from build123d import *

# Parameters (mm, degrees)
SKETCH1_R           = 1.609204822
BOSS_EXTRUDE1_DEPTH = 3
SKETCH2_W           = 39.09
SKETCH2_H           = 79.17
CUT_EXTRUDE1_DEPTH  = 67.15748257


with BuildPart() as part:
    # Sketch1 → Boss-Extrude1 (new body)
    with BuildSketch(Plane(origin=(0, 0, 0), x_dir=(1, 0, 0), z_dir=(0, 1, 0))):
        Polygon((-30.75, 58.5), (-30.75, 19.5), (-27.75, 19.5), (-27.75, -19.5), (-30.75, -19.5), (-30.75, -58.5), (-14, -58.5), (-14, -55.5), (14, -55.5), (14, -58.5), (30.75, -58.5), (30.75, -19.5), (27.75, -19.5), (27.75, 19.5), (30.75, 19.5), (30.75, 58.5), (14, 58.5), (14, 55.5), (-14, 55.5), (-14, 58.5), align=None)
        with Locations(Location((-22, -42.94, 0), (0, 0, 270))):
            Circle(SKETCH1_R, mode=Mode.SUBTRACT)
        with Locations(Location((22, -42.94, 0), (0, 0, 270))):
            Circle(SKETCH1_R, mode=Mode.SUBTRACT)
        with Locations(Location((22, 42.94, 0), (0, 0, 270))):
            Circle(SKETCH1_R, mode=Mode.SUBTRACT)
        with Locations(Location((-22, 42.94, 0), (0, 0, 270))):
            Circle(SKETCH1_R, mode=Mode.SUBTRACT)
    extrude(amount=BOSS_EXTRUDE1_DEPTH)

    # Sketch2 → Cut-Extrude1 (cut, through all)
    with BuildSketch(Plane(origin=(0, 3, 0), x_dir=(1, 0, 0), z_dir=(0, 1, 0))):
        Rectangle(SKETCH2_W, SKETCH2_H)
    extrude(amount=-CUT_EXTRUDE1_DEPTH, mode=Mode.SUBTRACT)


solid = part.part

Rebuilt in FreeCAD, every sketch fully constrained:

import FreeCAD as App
import Part
import Sketcher

doc = App.newDocument("Part")
body = doc.addObject("PartDesign::Body", "Body")

sketch1 = body.newObject("Sketcher::SketchObject", "Sketch")
sketch1.AttachmentSupport = (doc.getObject("XZ_Plane"), [""])
sketch1.MapMode = "FlatFace"
sketch1.addGeometry([
    Part.LineSegment(App.Vector(-30.8, -58.5, 0), App.Vector(-30.8, -19.5, 0)),
    Part.LineSegment(App.Vector(-30.8, -19.5, 0), App.Vector(-27.8, -19.5, 0)),
    Part.LineSegment(App.Vector(-27.8, -19.5, 0), App.Vector(-27.8, 19.5, 0)),
    Part.LineSegment(App.Vector(-27.8, 19.5, 0), App.Vector(-30.8, 19.5, 0)),
    Part.LineSegment(App.Vector(-30.8, 19.5, 0), App.Vector(-30.8, 58.5, 0)),
    Part.LineSegment(App.Vector(-30.8, 58.5, 0), App.Vector(-14, 58.5, 0)),
    Part.LineSegment(App.Vector(-14, 58.5, 0), App.Vector(-14, 55.5, 0)),
    Part.LineSegment(App.Vector(-14, 55.5, 0), App.Vector(14, 55.5, 0)),
    Part.LineSegment(App.Vector(14, 55.5, 0), App.Vector(14, 58.5, 0)),
    Part.LineSegment(App.Vector(14, 58.5, 0), App.Vector(30.8, 58.5, 0)),
    Part.LineSegment(App.Vector(30.8, 58.5, 0), App.Vector(30.8, 19.5, 0)),
    Part.LineSegment(App.Vector(30.8, 19.5, 0), App.Vector(27.8, 19.5, 0)),
    Part.LineSegment(App.Vector(27.8, 19.5, 0), App.Vector(27.8, -19.5, 0)),
    Part.LineSegment(App.Vector(27.8, -19.5, 0), App.Vector(30.8, -19.5, 0)),
    Part.LineSegment(App.Vector(30.8, -19.5, 0), App.Vector(30.8, -58.5, 0)),
    Part.LineSegment(App.Vector(30.8, -58.5, 0), App.Vector(14, -58.5, 0)),
    Part.LineSegment(App.Vector(14, -58.5, 0), App.Vector(14, -55.5, 0)),
    Part.LineSegment(App.Vector(14, -55.5, 0), App.Vector(-14, -55.5, 0)),
    Part.LineSegment(App.Vector(-14, -55.5, 0), App.Vector(-14, -58.5, 0)),
    Part.LineSegment(App.Vector(-14, -58.5, 0), App.Vector(-30.8, -58.5, 0)),
    Part.Circle(App.Vector(-22, 42.9, 0), App.Vector(0, 0, 1), 1.6),
    Part.Circle(App.Vector(22, 42.9, 0), App.Vector(0, 0, 1), 1.6),
    Part.Circle(App.Vector(-22, -42.9, 0), App.Vector(0, 0, 1), 1.6),
    Part.Circle(App.Vector(22, -42.9, 0), App.Vector(0, 0, 1), 1.6),
], False)
sketch1.addConstraint([
    Sketcher.Constraint("Coincident", 0, 2, 1, 1),
    Sketcher.Constraint("Coincident", 1, 2, 2, 1),
    Sketcher.Constraint("Coincident", 2, 2, 3, 1),
    Sketcher.Constraint("Coincident", 3, 2, 4, 1),
    Sketcher.Constraint("Coincident", 4, 2, 5, 1),
    Sketcher.Constraint("Coincident", 5, 2, 6, 1),
    Sketcher.Constraint("Coincident", 6, 2, 7, 1),
    Sketcher.Constraint("Coincident", 7, 2, 8, 1),
    Sketcher.Constraint("Coincident", 8, 2, 9, 1),
    Sketcher.Constraint("Coincident", 9, 2, 10, 1),
    Sketcher.Constraint("Coincident", 10, 2, 11, 1),
    Sketcher.Constraint("Coincident", 11, 2, 12, 1),
    Sketcher.Constraint("Coincident", 12, 2, 13, 1),
    Sketcher.Constraint("Coincident", 13, 2, 14, 1),
    Sketcher.Constraint("Coincident", 14, 2, 15, 1),
    Sketcher.Constraint("Coincident", 15, 2, 16, 1),
    Sketcher.Constraint("Coincident", 16, 2, 17, 1),
    Sketcher.Constraint("Coincident", 17, 2, 18, 1),
    Sketcher.Constraint("Coincident", 18, 2, 19, 1),
    Sketcher.Constraint("Coincident", 19, 2, 0, 1),
    Sketcher.Constraint("Vertical", 0),
    Sketcher.Constraint("Horizontal", 1),
    Sketcher.Constraint("Vertical", 2),
    Sketcher.Constraint("Horizontal", 3),
    Sketcher.Constraint("Vertical", 4),
    Sketcher.Constraint("Horizontal", 5),
    Sketcher.Constraint("Vertical", 6),
    Sketcher.Constraint("Horizontal", 7),
    Sketcher.Constraint("Vertical", 8),
    Sketcher.Constraint("Horizontal", 9),
    Sketcher.Constraint("Vertical", 10),
    Sketcher.Constraint("Horizontal", 11),
    Sketcher.Constraint("Vertical", 12),
    Sketcher.Constraint("Horizontal", 13),
    Sketcher.Constraint("Vertical", 14),
    Sketcher.Constraint("Horizontal", 15),
    Sketcher.Constraint("Vertical", 16),
    Sketcher.Constraint("Horizontal", 17),
    Sketcher.Constraint("Vertical", 18),
    Sketcher.Constraint("Horizontal", 19),
    Sketcher.Constraint("Equal", 20, 21),
    Sketcher.Constraint("Equal", 21, 22),
    Sketcher.Constraint("Equal", 22, 23),
    Sketcher.Constraint("Symmetric", 21, 3, 22, 3, -1, 1),
    Sketcher.Constraint("Symmetric", 20, 3, 23, 3, -1, 1),
    Sketcher.Constraint("Symmetric", 0, 2, 10, 2, -1, 1),
    Sketcher.Constraint("Symmetric", 2, 2, 12, 2, -1, 1),
    Sketcher.Constraint("Symmetric", 4, 2, 14, 2, -1, 1),
    Sketcher.Constraint("Symmetric", 6, 2, 16, 2, -1, 1),
    Sketcher.Constraint("Symmetric", 8, 2, 18, 2, -1, 1),
    Sketcher.Constraint("Symmetric", 20, 3, 21, 3, -2),
    Sketcher.Constraint("Symmetric", 5, 2, 8, 2, -2),
    Sketcher.Constraint("Symmetric", 3, 2, 10, 2, -2),
    Sketcher.Constraint("Equal", 0, 2),
    Sketcher.Constraint("Equal", 13, 6),
    Sketcher.Constraint("DistanceX", 1, 1, 1, 2, 3.0),
    Sketcher.Constraint("DistanceX", 7, 1, 7, 2, 28.0),
    Sketcher.Constraint("DistanceY", 0, 1, 0, 2, 39.0),
    Sketcher.Constraint("DistanceX", 20, 3, -1, 1, 22.0),
    Sketcher.Constraint("DistanceX", 5, 1, 5, 2, 16.75),
    Sketcher.Constraint("Diameter", 20, 3.21841),
    Sketcher.Constraint("DistanceY", -1, 1, 20, 3, 42.94),
])
pad1 = body.newObject("PartDesign::Pad", "Pad")
pad1.Profile = sketch1
pad1.Length = 3
pad1.Reversed = True

sketch2 = body.newObject("Sketcher::SketchObject", "Sketch001")
sketch2.AttachmentSupport = (doc.getObject("XZ_Plane"), [""])
sketch2.MapMode = "FlatFace"
sketch2.AttachmentOffset = App.Placement(App.Vector(0, 0, -3), App.Rotation())
sketch2.addGeometry([
    Part.LineSegment(App.Vector(-20, -40, 0), App.Vector(-20, 40, 0)),
    Part.LineSegment(App.Vector(-20, 40, 0), App.Vector(20, 40, 0)),
    Part.LineSegment(App.Vector(20, 40, 0), App.Vector(20, -40, 0)),
    Part.LineSegment(App.Vector(20, -40, 0), App.Vector(-20, -40, 0)),
], False)
sketch2.addConstraint([
    Sketcher.Constraint("Coincident", 0, 2, 1, 1),
    Sketcher.Constraint("Coincident", 1, 2, 2, 1),
    Sketcher.Constraint("Coincident", 2, 2, 3, 1),
    Sketcher.Constraint("Coincident", 3, 2, 0, 1),
    Sketcher.Constraint("Vertical", 0),
    Sketcher.Constraint("Horizontal", 1),
    Sketcher.Constraint("Vertical", 2),
    Sketcher.Constraint("Horizontal", 3),
    Sketcher.Constraint("Symmetric", 0, 2, 2, 2, -1, 1),
    Sketcher.Constraint("DistanceX", 1, 1, 1, 2, 39.09),
    Sketcher.Constraint("DistanceY", 0, 1, 0, 2, 79.17),
])
pocket1 = body.newObject("PartDesign::Pocket", "Pocket")
pocket1.Profile = sketch2
pocket1.Type = "ThroughAll"
pocket1.Reversed = True

doc.recompute()
